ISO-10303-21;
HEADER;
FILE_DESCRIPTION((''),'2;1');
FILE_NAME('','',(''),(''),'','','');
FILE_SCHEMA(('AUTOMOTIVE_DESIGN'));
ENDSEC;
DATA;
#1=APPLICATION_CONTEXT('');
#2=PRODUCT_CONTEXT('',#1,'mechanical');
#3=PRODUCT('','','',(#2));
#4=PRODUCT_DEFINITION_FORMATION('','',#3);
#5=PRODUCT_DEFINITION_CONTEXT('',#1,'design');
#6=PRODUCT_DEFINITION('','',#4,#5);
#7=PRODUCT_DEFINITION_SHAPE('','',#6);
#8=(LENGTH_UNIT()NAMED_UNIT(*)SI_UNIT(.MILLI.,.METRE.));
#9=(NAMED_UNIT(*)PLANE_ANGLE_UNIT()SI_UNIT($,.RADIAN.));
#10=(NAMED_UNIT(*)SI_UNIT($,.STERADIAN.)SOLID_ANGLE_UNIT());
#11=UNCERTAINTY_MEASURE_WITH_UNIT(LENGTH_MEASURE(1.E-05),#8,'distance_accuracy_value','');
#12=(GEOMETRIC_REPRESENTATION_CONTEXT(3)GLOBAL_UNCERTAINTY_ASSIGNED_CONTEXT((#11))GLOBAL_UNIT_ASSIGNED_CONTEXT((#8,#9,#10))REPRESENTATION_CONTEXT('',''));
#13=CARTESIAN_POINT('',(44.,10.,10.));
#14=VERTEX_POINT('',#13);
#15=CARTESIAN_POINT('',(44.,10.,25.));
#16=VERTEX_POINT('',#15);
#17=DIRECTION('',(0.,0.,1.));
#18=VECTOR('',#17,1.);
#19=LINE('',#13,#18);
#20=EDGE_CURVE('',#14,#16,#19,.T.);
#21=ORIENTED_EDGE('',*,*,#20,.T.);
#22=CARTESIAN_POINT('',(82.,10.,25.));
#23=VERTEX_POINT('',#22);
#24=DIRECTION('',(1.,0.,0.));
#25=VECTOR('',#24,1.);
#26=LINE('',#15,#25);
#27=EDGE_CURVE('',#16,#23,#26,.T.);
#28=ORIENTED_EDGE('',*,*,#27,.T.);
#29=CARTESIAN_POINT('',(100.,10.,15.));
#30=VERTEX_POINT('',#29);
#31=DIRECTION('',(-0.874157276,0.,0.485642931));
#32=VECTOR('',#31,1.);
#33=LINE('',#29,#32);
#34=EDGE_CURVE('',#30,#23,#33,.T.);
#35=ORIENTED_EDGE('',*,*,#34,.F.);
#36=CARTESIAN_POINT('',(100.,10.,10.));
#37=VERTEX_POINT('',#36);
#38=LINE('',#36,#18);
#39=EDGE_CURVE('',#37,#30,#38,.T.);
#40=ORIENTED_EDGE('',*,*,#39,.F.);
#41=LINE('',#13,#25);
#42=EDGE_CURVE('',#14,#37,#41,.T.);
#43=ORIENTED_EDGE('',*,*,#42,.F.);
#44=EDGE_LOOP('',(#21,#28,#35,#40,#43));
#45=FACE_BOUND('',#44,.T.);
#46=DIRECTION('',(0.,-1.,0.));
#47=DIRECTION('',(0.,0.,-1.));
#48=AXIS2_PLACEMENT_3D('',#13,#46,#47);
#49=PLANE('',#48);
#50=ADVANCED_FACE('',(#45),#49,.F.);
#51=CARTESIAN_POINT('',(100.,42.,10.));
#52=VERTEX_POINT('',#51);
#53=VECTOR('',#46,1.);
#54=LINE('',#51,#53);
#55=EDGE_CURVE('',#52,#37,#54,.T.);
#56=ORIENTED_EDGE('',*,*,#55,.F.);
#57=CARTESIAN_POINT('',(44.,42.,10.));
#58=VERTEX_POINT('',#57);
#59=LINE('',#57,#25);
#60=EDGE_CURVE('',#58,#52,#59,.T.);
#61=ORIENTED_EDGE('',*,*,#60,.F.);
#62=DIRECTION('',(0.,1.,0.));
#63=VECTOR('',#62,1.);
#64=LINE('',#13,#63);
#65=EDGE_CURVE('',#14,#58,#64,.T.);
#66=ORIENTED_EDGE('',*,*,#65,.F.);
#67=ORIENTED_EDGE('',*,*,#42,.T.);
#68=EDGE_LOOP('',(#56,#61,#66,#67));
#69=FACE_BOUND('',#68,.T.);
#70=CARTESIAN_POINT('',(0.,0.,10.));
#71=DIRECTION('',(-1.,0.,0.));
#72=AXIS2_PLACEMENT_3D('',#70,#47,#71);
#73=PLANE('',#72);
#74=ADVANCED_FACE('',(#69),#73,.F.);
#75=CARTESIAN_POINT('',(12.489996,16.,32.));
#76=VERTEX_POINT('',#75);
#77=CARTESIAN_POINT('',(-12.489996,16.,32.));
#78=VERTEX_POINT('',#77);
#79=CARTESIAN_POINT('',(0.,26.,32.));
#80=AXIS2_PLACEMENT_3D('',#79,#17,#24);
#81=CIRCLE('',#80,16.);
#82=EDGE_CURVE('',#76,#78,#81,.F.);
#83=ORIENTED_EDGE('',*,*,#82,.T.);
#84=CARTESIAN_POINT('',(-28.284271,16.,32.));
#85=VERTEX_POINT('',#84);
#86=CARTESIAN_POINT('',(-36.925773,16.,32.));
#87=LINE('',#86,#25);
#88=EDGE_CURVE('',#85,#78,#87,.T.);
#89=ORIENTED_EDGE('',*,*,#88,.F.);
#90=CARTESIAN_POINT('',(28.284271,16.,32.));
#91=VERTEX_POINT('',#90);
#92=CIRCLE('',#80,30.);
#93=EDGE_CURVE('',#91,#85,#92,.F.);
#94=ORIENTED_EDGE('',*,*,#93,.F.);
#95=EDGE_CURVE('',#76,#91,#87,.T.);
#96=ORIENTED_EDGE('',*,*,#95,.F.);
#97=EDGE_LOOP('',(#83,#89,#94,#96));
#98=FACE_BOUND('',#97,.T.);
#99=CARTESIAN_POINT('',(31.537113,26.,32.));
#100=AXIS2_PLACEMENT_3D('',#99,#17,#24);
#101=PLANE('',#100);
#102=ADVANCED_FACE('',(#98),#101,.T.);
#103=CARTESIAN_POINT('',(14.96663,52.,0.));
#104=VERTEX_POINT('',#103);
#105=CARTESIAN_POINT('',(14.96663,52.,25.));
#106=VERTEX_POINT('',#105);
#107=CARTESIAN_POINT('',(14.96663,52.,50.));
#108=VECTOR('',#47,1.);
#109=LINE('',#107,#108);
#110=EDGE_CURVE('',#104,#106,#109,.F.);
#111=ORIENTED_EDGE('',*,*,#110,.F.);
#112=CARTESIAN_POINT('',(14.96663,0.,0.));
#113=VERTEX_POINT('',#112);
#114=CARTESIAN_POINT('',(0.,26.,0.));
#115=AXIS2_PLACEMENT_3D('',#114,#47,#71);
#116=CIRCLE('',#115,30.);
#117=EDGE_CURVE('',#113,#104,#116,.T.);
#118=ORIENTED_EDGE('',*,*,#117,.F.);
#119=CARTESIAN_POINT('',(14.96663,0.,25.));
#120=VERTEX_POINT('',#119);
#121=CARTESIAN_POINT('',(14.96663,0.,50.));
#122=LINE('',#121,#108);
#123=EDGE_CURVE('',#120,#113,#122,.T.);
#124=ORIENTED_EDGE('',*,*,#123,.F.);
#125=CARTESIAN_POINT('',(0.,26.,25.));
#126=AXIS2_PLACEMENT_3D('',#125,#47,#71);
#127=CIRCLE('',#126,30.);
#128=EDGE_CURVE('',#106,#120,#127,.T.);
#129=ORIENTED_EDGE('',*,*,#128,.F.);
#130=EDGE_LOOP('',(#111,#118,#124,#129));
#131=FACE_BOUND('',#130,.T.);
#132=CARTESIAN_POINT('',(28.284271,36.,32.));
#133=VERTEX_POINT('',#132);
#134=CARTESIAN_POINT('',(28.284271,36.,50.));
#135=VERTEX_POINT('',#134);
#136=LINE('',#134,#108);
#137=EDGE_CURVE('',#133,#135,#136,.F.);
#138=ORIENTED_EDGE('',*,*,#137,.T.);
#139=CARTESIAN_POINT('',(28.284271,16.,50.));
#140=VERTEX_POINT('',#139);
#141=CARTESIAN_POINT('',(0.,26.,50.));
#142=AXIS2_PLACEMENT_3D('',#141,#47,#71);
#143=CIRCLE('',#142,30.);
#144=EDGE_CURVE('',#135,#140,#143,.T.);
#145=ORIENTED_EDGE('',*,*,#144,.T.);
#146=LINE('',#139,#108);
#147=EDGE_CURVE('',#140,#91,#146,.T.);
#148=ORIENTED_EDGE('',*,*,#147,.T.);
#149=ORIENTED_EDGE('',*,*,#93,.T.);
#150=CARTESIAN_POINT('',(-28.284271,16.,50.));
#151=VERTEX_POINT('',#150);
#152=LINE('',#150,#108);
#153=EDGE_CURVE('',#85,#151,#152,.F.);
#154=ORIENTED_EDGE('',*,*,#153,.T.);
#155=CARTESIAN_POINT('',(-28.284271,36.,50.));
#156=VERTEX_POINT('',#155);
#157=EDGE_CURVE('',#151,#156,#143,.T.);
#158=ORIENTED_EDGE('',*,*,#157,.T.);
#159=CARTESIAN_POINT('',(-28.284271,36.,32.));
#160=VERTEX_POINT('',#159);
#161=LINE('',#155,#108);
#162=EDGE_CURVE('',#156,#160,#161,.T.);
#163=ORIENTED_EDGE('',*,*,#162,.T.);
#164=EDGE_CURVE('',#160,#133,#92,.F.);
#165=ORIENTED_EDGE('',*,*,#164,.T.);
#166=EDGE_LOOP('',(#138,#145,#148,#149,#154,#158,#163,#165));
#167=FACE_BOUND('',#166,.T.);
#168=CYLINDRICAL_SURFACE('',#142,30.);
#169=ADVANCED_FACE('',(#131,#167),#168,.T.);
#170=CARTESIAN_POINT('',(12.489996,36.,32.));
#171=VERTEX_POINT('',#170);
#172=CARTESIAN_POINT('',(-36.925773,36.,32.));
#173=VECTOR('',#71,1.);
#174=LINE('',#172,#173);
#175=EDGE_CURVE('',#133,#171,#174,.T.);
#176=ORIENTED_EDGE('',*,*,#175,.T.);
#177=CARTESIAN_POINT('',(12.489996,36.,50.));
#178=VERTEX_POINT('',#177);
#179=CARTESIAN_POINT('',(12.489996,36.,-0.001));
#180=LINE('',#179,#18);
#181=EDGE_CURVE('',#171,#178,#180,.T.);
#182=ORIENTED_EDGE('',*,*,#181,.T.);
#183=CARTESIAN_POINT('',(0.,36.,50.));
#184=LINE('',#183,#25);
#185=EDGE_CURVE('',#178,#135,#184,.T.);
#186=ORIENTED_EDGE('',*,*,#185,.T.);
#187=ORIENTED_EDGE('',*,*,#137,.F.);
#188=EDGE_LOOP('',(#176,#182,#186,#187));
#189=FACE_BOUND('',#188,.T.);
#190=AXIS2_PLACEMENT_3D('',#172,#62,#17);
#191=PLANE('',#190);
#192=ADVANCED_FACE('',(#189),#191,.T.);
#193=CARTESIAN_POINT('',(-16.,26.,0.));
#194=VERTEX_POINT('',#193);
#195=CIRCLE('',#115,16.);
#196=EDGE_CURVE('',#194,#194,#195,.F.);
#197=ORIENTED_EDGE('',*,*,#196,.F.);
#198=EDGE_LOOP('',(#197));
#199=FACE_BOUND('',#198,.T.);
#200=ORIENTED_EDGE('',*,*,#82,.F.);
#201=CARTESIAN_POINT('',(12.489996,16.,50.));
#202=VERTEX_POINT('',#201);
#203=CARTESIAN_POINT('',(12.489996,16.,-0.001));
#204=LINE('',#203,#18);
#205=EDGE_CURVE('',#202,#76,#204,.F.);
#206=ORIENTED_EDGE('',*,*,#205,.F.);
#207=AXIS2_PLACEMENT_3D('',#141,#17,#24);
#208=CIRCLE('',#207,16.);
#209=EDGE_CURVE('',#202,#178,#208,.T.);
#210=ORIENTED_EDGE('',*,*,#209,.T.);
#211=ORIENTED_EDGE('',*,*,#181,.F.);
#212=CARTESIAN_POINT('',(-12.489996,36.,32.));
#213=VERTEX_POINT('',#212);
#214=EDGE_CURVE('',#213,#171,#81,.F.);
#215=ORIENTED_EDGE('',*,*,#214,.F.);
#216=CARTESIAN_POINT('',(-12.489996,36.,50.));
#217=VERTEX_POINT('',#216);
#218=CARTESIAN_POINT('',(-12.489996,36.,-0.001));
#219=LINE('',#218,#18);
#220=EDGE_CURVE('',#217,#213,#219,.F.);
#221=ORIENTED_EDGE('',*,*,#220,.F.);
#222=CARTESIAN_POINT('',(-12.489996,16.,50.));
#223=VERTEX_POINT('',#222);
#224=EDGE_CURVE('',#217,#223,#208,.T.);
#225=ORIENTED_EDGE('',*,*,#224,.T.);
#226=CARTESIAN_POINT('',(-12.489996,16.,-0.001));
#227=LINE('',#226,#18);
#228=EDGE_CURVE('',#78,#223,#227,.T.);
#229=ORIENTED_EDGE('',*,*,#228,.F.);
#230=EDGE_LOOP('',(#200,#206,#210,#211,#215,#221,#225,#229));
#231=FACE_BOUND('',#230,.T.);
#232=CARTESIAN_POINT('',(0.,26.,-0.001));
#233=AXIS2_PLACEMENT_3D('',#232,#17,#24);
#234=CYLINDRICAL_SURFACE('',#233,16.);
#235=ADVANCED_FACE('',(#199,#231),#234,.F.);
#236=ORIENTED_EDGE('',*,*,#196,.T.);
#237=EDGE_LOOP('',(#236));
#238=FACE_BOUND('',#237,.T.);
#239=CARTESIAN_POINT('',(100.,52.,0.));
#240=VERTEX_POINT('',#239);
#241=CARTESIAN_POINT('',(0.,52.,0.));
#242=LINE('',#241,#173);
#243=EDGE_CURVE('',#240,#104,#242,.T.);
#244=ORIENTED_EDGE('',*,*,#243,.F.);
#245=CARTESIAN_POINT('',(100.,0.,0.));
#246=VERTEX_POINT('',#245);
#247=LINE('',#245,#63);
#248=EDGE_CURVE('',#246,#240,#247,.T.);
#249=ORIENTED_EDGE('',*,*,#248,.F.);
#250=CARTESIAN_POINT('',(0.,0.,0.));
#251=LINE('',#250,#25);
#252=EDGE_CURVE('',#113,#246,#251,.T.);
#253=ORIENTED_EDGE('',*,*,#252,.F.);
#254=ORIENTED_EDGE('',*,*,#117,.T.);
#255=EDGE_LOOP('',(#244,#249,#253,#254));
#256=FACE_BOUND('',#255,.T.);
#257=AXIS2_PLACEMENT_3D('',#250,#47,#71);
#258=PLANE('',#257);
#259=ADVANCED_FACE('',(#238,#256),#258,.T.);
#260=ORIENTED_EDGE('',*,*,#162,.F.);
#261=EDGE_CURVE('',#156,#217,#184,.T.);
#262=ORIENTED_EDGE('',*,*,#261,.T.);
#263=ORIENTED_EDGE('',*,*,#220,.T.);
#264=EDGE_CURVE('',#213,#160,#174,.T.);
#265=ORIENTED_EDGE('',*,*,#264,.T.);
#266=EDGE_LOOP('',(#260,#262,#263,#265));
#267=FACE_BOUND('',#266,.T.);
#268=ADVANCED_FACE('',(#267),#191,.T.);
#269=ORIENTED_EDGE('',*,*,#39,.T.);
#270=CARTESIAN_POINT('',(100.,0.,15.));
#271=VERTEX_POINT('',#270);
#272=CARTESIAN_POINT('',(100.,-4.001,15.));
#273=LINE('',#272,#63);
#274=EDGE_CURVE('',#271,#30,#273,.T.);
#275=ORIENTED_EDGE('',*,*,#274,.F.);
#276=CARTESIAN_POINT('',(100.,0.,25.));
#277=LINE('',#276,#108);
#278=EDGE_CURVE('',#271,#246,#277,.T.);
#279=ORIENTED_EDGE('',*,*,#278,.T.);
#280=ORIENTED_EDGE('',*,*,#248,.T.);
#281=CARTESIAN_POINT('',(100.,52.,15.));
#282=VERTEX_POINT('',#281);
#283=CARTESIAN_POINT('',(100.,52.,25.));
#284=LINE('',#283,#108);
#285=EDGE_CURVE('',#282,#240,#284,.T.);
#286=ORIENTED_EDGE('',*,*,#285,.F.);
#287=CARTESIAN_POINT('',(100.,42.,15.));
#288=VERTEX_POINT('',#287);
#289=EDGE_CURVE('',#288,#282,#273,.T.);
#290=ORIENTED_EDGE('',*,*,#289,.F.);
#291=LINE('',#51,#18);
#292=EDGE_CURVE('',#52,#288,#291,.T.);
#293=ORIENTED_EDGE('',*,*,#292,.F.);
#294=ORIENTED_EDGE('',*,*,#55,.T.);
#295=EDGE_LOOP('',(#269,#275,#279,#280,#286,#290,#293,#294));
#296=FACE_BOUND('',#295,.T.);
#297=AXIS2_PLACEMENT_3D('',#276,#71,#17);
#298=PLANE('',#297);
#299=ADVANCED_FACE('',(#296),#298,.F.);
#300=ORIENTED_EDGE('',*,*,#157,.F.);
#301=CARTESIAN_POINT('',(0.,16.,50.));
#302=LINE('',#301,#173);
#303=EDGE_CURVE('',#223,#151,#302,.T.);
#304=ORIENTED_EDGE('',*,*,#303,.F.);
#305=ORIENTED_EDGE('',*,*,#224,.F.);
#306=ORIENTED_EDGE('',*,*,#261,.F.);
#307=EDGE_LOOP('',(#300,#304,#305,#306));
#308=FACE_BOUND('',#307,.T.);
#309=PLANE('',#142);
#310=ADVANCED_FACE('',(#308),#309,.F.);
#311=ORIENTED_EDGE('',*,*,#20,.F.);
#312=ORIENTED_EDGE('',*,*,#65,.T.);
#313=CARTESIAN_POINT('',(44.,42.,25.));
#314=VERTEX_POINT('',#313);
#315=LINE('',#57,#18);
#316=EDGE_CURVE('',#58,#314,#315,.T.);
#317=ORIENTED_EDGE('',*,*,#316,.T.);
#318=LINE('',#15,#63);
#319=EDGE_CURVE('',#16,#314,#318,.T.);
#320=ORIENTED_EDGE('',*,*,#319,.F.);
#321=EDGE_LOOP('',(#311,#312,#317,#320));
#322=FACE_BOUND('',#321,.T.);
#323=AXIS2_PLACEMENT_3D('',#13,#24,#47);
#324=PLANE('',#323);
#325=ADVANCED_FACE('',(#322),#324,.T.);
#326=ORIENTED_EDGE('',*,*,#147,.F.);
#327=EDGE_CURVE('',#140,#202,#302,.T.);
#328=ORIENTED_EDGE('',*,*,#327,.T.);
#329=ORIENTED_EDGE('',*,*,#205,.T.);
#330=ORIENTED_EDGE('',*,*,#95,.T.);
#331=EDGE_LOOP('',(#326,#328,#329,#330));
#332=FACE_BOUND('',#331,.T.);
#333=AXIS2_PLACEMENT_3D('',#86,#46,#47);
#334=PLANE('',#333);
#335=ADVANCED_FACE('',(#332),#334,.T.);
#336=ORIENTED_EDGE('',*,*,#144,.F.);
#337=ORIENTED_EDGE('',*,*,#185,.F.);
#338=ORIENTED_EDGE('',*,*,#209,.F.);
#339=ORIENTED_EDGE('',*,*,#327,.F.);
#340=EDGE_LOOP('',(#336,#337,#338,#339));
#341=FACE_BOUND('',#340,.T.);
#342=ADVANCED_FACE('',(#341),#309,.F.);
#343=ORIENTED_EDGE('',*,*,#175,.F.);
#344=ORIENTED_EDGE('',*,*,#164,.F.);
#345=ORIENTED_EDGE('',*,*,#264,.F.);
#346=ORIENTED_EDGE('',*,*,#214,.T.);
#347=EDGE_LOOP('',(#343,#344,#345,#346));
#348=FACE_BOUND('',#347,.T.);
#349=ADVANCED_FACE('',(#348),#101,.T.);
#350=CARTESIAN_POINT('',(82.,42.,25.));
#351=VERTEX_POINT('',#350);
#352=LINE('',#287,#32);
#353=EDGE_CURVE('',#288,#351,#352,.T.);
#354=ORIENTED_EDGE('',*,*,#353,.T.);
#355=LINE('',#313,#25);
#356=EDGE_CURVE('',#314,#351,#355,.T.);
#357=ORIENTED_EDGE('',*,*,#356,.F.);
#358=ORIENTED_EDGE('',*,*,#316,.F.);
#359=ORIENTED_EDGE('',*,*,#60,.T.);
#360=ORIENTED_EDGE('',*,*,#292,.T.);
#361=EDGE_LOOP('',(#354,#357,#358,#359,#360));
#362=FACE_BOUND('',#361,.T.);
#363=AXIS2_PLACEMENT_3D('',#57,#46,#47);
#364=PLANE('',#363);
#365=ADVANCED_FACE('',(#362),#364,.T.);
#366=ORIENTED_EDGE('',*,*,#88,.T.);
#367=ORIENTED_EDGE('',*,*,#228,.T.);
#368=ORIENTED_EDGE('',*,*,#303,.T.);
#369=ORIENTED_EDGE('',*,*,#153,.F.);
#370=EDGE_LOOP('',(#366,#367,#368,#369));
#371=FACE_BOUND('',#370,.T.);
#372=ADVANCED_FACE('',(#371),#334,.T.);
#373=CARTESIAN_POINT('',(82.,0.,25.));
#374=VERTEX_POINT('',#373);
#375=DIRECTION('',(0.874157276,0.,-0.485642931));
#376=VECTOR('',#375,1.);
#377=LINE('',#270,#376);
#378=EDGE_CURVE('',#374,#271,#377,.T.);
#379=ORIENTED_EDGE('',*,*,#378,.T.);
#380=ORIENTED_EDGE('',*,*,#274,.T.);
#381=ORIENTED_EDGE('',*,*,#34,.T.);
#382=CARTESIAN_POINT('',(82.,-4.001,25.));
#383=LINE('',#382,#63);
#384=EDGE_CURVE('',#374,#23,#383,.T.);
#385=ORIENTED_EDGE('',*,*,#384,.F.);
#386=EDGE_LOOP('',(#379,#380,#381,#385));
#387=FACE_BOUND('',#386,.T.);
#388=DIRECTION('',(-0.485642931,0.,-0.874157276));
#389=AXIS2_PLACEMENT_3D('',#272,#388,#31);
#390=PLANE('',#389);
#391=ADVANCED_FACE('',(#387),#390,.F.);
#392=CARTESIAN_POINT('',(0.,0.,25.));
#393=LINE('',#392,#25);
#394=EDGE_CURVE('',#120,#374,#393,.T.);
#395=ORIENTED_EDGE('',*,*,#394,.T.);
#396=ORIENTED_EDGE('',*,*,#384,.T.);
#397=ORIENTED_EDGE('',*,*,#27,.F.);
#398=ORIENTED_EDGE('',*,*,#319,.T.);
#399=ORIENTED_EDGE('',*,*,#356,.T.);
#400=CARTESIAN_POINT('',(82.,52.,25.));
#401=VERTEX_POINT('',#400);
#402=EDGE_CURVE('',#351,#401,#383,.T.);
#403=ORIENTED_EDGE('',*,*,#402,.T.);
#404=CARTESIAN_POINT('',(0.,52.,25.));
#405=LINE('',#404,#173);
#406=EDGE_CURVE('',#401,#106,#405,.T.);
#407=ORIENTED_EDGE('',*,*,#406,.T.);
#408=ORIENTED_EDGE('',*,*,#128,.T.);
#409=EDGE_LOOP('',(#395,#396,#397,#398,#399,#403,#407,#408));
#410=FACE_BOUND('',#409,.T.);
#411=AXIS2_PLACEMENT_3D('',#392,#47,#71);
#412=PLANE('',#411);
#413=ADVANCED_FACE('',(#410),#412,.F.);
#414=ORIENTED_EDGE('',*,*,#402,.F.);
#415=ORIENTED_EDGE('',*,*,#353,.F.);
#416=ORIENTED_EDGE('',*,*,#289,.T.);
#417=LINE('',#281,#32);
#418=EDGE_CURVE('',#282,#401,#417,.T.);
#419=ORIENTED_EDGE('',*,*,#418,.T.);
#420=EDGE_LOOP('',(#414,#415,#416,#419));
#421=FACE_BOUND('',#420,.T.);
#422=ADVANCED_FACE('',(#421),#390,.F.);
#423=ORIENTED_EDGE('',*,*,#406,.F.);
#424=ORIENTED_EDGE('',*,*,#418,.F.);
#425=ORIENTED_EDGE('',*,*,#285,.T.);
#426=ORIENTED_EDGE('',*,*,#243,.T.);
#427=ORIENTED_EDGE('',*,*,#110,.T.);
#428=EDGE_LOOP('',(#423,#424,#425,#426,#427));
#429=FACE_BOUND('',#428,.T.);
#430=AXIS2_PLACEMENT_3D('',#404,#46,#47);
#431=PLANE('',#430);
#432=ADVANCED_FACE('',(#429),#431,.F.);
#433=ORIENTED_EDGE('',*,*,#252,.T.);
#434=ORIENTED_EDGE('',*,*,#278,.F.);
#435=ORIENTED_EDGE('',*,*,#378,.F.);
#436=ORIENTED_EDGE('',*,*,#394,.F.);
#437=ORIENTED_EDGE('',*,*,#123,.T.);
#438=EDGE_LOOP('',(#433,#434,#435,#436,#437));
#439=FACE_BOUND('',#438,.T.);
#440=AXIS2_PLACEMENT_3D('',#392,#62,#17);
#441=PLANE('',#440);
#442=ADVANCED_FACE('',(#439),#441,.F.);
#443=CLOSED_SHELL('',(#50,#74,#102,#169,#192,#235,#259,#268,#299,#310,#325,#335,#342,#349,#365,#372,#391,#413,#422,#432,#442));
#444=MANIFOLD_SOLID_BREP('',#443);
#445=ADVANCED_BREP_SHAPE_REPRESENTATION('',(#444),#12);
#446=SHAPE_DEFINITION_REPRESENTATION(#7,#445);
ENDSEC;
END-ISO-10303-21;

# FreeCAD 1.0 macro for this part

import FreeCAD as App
import Part
import Sketcher
from FreeCAD import Vector
Q = App.Units.Quantity


def add_polygon(sketch, points):
    """Adds a closed chain of lines whose ends are joined by coincident constraints."""
    first, n = sketch.GeometryCount, len(points)
    for a, b in zip(points, points[1:] + points[:1]):
        sketch.addGeometry(Part.LineSegment(App.Vector(*a, 0), App.Vector(*b, 0)), False)
    for i in range(n):
        sketch.addConstraint(Sketcher.Constraint("Coincident", first + i, 2, first + (i + 1) % n, 1))

doc = App.newDocument("Part")
body = doc.addObject("PartDesign::Body", "Body")

sketch1 = doc.addObject("Sketcher::SketchObject", "Sketch")
body.addObject(sketch1)
sketch1.AttachmentSupport = (doc.XY_Plane, [""])
sketch1.MapMode = "FlatFace"
add_polygon(sketch1, [(0, 52), (0, 0), (100, 0), (100, 52)])
sketch1.addConstraint(Sketcher.Constraint("Vertical", 0))
sketch1.addConstraint(Sketcher.Constraint("Horizontal", 1))
sketch1.addConstraint(Sketcher.Constraint("Vertical", 2))
sketch1.addConstraint(Sketcher.Constraint("Horizontal", 3))
sketch1.addConstraint(Sketcher.Constraint("Coincident", 0, 2, -1, 1))
sketch1.addConstraint(Sketcher.Constraint("DistanceX", 1, 1, 1, 2, Q("100 mm")))
sketch1.addConstraint(Sketcher.Constraint("DistanceY", 0, 2, 0, 1, Q("52 mm")))
pad1 = doc.addObject("PartDesign::Pad", "Pad")
body.addObject(pad1)
pad1.Profile = sketch1
pad1.Length = 25

sketch2 = doc.addObject("Sketcher::SketchObject", "Sketch001")
body.addObject(sketch2)
sketch2.AttachmentSupport = (doc.XY_Plane, [""])
sketch2.MapMode = "FlatFace"
sketch2.addGeometry(Part.Circle(Vector(0, 26, 0), Vector(0, 0, 1), 30), False)
sketch2.addConstraint(Sketcher.Constraint("PointOnObject", 0, 3, -2))
sketch2.addConstraint(Sketcher.Constraint("Diameter", 0, Q("60 mm")))
sketch2.addConstraint(Sketcher.Constraint("DistanceY", -1, 1, 0, 3, Q("26 mm")))
pad2 = doc.addObject("PartDesign::Pad", "Pad001")
body.addObject(pad2)
pad2.Profile = sketch2
pad2.Length = 50

sketch3 = doc.addObject("Sketcher::SketchObject", "Sketch002")
body.addObject(sketch3)
sketch3.AttachmentSupport = (doc.XZ_Plane, [""])
sketch3.MapMode = "FlatFace"
sketch3.AttachmentOffset = App.Placement(Vector(0, 0, -52), App.Rotation())
add_polygon(sketch3, [(100, 25), (100, 15), (82, 25)])
sketch3.addConstraint(Sketcher.Constraint("Vertical", 0))
sketch3.addConstraint(Sketcher.Constraint("Horizontal", 2))
sketch3.addConstraint(Sketcher.Constraint("DistanceX", 2, 1, 2, 2, Q("18 mm")))
sketch3.addConstraint(Sketcher.Constraint("DistanceY", 0, 2, 0, 1, Q("10 mm")))
sketch3.addConstraint(Sketcher.Constraint("DistanceX", -1, 1, 0, 2, Q("100 mm")))
sketch3.addConstraint(Sketcher.Constraint("DistanceY", -1, 1, 0, 2, Q("15 mm")))
pocket1 = doc.addObject("PartDesign::Pocket", "Pocket")
body.addObject(pocket1)
pocket1.Profile = sketch3
pocket1.Type = "UpToFirst"
pocket1.Reversed = True

sketch4 = doc.addObject("Sketcher::SketchObject", "Sketch003")
body.addObject(sketch4)
sketch4.AttachmentSupport = (doc.XY_Plane, [""])
sketch4.MapMode = "FlatFace"
sketch4.AttachmentOffset = App.Placement(Vector(0, 0, 25), App.Rotation())
add_polygon(sketch4, [(44, 42), (44, 10), (100, 10), (100, 42)])
sketch4.addConstraint(Sketcher.Constraint("Vertical", 0))
sketch4.addConstraint(Sketcher.Constraint("Horizontal", 1))
sketch4.addConstraint(Sketcher.Constraint("Vertical", 2))
sketch4.addConstraint(Sketcher.Constraint("Horizontal", 3))
sketch4.addConstraint(Sketcher.Constraint("DistanceX", 1, 1, 1, 2, Q("56 mm")))
sketch4.addConstraint(Sketcher.Constraint("DistanceY", 0, 2, 0, 1, Q("32 mm")))
sketch4.addConstraint(Sketcher.Constraint("DistanceX", -1, 1, 0, 2, Q("44 mm")))
sketch4.addConstraint(Sketcher.Constraint("DistanceY", -1, 1, 0, 2, Q("10 mm")))
pocket2 = doc.addObject("PartDesign::Pocket", "Pocket001")
body.addObject(pocket2)
pocket2.Profile = sketch4
pocket2.Length = 15

sketch5 = doc.addObject("Sketcher::SketchObject", "Sketch004")
body.addObject(sketch5)
sketch5.AttachmentSupport = (doc.XY_Plane, [""])
sketch5.MapMode = "FlatFace"
sketch5.AttachmentOffset = App.Placement(Vector(0, 0, 50), App.Rotation())
add_polygon(sketch5, [(-46, 72), (-46, -20), (116, -20), (116, 72)])
add_polygon(sketch5, [(37, 16), (-37, 16), (-37, 36), (37, 36)])
sketch5.addConstraint(Sketcher.Constraint("Vertical", 0))
sketch5.addConstraint(Sketcher.Constraint("Horizontal", 1))
sketch5.addConstraint(Sketcher.Constraint("Vertical", 2))
sketch5.addConstraint(Sketcher.Constraint("Horizontal", 3))
sketch5.addConstraint(Sketcher.Constraint("Horizontal", 4))
sketch5.addConstraint(Sketcher.Constraint("Vertical", 5))
sketch5.addConstraint(Sketcher.Constraint("Horizontal", 6))
sketch5.addConstraint(Sketcher.Constraint("Vertical", 7))
sketch5.addConstraint(Sketcher.Constraint("DistanceY", 5, 1, 5, 2, Q("20 mm")))
sketch5.addConstraint(Sketcher.Constraint("DistanceY", -1, 1, 4, 2, Q("16 mm")))
sketch5.addConstraint(Sketcher.Constraint("DistanceX", 1, 1, 1, 2, Q("162.332 mm")))
sketch5.addConstraint(Sketcher.Constraint("DistanceY", 0, 2, 0, 1, Q("92.332 mm")))
sketch5.addConstraint(Sketcher.Constraint("DistanceX", 0, 2, -1, 1, Q("46.166 mm")))
sketch5.addConstraint(Sketcher.Constraint("DistanceY", 0, 2, -1, 1, Q("20.166 mm")))
sketch5.addConstraint(Sketcher.Constraint("DistanceX", 4, 2, 4, 1, Q("73.851547 mm")))
sketch5.addConstraint(Sketcher.Constraint("DistanceX", 4, 2, -1, 1, Q("36.925773 mm")))
pocket3 = doc.addObject("PartDesign::Pocket", "Pocket002")
body.addObject(pocket3)
pocket3.Profile = sketch5
pocket3.Length = 18

sketch6 = doc.addObject("Sketcher::SketchObject", "Sketch005")
body.addObject(sketch6)
sketch6.AttachmentSupport = (doc.XY_Plane, [""])
sketch6.MapMode = "FlatFace"
sketch6.AttachmentOffset = App.Placement(Vector(0, 0, 50), App.Rotation())
sketch6.addGeometry(Part.Circle(Vector(0, 26, 0), Vector(0, 0, 1), 16), False)
sketch6.addConstraint(Sketcher.Constraint("PointOnObject", 0, 3, -2))
sketch6.addConstraint(Sketcher.Constraint("Diameter", 0, Q("32 mm")))
sketch6.addConstraint(Sketcher.Constraint("DistanceY", -1, 1, 0, 3, Q("26 mm")))
pocket4 = doc.addObject("PartDesign::Pocket", "Pocket003")
body.addObject(pocket4)
pocket4.Profile = sketch6
pocket4.Type = "UpToFirst"

doc.recompute()
